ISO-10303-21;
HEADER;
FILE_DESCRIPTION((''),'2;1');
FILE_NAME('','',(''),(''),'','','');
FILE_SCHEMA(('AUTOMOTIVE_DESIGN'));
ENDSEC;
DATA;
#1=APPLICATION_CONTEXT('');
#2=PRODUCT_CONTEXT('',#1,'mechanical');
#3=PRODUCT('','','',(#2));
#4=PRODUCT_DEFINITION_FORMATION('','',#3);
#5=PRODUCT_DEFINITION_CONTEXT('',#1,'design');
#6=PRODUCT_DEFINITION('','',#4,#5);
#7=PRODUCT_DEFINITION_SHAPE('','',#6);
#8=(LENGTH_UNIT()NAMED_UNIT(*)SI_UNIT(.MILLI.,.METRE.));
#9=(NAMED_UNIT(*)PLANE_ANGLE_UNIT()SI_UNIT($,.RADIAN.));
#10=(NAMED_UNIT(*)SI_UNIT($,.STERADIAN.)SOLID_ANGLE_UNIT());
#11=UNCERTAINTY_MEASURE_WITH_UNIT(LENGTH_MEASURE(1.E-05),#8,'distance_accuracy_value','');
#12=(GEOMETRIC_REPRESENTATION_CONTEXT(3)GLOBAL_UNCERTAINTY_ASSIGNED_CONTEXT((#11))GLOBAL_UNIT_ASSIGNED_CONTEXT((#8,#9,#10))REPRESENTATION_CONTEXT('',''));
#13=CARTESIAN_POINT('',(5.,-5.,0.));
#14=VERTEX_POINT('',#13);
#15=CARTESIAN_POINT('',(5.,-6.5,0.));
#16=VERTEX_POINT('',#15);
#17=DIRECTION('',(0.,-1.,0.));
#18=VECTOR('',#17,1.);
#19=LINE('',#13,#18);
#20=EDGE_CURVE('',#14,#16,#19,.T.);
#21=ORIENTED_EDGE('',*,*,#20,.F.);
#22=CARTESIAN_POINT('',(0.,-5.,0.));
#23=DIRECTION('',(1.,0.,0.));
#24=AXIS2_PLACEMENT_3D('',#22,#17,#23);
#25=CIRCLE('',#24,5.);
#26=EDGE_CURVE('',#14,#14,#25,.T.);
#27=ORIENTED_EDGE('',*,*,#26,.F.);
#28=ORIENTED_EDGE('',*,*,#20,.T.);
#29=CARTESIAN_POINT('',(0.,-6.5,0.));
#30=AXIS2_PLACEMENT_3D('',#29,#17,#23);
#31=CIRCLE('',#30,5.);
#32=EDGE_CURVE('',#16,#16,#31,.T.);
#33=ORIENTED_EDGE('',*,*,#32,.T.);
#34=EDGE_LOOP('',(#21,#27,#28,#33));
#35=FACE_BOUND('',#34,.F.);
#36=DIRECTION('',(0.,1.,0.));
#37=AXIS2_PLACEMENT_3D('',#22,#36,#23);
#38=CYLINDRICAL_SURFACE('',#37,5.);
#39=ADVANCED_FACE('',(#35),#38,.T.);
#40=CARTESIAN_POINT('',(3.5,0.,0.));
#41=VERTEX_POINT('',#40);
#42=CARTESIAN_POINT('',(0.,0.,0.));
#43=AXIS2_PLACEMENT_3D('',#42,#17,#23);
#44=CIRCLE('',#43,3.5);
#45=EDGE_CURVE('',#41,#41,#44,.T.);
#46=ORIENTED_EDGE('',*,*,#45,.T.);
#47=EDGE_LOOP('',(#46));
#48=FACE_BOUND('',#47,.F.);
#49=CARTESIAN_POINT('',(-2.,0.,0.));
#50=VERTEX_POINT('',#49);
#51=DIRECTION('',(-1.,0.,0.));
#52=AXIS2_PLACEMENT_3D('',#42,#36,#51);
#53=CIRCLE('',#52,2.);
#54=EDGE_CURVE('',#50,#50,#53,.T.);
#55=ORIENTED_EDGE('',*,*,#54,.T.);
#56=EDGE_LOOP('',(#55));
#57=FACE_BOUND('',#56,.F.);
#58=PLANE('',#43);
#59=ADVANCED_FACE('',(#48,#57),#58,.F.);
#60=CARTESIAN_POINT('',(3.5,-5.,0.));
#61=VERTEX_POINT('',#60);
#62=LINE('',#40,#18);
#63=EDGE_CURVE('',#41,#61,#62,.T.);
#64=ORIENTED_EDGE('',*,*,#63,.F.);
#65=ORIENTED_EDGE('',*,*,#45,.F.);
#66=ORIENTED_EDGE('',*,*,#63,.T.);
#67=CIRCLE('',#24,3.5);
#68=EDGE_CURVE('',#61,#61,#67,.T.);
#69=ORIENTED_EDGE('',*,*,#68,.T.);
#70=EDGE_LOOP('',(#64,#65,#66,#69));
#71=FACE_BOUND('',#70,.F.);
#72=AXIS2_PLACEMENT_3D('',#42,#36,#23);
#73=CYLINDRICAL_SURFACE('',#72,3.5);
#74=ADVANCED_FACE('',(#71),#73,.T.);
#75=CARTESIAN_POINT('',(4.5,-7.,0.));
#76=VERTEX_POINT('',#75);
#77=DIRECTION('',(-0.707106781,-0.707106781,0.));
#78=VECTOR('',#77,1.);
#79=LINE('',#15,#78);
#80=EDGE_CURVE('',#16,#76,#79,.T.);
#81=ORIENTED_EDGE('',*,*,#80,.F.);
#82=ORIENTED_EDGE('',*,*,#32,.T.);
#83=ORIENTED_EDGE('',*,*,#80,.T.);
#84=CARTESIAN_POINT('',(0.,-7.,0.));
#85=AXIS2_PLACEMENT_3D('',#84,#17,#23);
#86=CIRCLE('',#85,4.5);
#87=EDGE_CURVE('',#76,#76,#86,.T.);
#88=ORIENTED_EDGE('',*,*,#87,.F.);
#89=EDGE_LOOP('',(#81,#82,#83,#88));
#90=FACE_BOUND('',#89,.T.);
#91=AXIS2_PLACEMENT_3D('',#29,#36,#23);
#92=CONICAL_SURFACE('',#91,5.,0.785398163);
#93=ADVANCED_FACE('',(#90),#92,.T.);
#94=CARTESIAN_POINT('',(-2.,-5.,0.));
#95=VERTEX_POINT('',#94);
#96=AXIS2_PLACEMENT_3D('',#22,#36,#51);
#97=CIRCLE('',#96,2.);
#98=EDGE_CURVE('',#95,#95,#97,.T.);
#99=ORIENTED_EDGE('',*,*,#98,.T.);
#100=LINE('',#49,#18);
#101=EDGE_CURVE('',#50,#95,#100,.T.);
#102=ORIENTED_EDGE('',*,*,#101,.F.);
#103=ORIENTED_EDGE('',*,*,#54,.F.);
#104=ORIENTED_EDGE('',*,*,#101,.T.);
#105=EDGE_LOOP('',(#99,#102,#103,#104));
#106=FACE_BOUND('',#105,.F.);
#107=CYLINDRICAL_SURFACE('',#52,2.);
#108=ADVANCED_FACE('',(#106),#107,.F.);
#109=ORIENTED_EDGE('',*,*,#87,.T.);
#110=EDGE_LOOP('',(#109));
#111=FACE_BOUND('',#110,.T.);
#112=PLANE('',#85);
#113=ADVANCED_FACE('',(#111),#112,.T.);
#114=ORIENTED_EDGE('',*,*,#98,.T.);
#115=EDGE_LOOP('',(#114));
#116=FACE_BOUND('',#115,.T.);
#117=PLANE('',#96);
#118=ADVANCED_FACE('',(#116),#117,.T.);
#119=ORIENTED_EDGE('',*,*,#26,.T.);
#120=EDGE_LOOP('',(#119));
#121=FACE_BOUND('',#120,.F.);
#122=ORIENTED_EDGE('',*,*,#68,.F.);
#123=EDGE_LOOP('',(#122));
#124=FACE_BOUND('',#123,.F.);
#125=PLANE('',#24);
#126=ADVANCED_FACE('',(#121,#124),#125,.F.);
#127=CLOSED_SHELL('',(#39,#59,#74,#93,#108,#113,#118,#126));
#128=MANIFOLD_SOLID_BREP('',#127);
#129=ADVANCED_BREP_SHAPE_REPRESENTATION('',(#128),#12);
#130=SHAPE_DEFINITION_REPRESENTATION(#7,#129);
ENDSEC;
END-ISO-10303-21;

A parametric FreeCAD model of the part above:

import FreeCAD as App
import Part
import Sketcher

V = App.Vector
Q = App.Units.Quantity


def edges_at(feature, points):
    """Names of the edges that pass closest to the given points."""
    edges = feature.Shape.Edges
    near = lambda p: min(range(len(edges)), key=lambda i: edges[i].distToShape(Part.Vertex(*p))[0])
    return sorted({f"Edge{near(p) + 1}" for p in points})

doc = App.newDocument("Part")
body = doc.addObject("PartDesign::Body", "Body")

# Sketch on XZ plane
sketch1 = body.newObject("Sketcher::SketchObject", "Sketch")
sketch1.AttachmentSupport = (doc.getObject("XZ_Plane"), [""])
sketch1.MapMode = "FlatFace"
sketch1.addGeometry(Part.Circle(V(0, 0, 0), V(0, 0, 1), 3.5), False)
sketch1.addConstraint([
    Sketcher.Constraint("Coincident", 0, 3, -1, 1),
    Sketcher.Constraint("Diameter", 0, Q("7 mm")),
])
pad1 = body.newObject("PartDesign::Pad", "Pad")
pad1.Profile = sketch1
pad1.Length = 5

# Sketch on XZ plane
sketch2 = body.newObject("Sketcher::SketchObject", "Sketch001")
sketch2.AttachmentSupport = (doc.getObject("XZ_Plane"), [""])
sketch2.MapMode = "FlatFace"
sketch2.AttachmentOffset = App.Placement(V(0, 0, 5), App.Rotation())
sketch2.addGeometry(Part.Circle(V(0, 0, 0), V(0, 0, 1), 5), False)
sketch2.addConstraint([
    Sketcher.Constraint("Coincident", 0, 3, -1, 1),
    Sketcher.Constraint("Diameter", 0, Q("10 mm")),
])
pad2 = body.newObject("PartDesign::Pad", "Pad001")
pad2.Profile = sketch2
pad2.Length = 2

# Sketch on XZ plane
sketch3 = body.newObject("Sketcher::SketchObject", "Sketch002")
sketch3.AttachmentSupport = (doc.getObject("XZ_Plane"), [""])
sketch3.MapMode = "FlatFace"
sketch3.addGeometry(Part.Circle(V(0, 0, 0), V(0, 0, 1), 2), False)
sketch3.addConstraint([
    Sketcher.Constraint("Coincident", 0, 3, -1, 1),
    Sketcher.Constraint("Diameter", 0, Q("4 mm")),
])
pocket1 = body.newObject("PartDesign::Pocket", "Pocket")
pocket1.Profile = sketch3
pocket1.Length = 5
pocket1.Reversed = True
doc.recompute()

chamfer = body.newObject("PartDesign::Chamfer", "Chamfer")
chamfer.Base = (pocket1, edges_at(pocket1, [(-5, -7, 0)]))
chamfer.Size = 0.5

doc.recompute()
